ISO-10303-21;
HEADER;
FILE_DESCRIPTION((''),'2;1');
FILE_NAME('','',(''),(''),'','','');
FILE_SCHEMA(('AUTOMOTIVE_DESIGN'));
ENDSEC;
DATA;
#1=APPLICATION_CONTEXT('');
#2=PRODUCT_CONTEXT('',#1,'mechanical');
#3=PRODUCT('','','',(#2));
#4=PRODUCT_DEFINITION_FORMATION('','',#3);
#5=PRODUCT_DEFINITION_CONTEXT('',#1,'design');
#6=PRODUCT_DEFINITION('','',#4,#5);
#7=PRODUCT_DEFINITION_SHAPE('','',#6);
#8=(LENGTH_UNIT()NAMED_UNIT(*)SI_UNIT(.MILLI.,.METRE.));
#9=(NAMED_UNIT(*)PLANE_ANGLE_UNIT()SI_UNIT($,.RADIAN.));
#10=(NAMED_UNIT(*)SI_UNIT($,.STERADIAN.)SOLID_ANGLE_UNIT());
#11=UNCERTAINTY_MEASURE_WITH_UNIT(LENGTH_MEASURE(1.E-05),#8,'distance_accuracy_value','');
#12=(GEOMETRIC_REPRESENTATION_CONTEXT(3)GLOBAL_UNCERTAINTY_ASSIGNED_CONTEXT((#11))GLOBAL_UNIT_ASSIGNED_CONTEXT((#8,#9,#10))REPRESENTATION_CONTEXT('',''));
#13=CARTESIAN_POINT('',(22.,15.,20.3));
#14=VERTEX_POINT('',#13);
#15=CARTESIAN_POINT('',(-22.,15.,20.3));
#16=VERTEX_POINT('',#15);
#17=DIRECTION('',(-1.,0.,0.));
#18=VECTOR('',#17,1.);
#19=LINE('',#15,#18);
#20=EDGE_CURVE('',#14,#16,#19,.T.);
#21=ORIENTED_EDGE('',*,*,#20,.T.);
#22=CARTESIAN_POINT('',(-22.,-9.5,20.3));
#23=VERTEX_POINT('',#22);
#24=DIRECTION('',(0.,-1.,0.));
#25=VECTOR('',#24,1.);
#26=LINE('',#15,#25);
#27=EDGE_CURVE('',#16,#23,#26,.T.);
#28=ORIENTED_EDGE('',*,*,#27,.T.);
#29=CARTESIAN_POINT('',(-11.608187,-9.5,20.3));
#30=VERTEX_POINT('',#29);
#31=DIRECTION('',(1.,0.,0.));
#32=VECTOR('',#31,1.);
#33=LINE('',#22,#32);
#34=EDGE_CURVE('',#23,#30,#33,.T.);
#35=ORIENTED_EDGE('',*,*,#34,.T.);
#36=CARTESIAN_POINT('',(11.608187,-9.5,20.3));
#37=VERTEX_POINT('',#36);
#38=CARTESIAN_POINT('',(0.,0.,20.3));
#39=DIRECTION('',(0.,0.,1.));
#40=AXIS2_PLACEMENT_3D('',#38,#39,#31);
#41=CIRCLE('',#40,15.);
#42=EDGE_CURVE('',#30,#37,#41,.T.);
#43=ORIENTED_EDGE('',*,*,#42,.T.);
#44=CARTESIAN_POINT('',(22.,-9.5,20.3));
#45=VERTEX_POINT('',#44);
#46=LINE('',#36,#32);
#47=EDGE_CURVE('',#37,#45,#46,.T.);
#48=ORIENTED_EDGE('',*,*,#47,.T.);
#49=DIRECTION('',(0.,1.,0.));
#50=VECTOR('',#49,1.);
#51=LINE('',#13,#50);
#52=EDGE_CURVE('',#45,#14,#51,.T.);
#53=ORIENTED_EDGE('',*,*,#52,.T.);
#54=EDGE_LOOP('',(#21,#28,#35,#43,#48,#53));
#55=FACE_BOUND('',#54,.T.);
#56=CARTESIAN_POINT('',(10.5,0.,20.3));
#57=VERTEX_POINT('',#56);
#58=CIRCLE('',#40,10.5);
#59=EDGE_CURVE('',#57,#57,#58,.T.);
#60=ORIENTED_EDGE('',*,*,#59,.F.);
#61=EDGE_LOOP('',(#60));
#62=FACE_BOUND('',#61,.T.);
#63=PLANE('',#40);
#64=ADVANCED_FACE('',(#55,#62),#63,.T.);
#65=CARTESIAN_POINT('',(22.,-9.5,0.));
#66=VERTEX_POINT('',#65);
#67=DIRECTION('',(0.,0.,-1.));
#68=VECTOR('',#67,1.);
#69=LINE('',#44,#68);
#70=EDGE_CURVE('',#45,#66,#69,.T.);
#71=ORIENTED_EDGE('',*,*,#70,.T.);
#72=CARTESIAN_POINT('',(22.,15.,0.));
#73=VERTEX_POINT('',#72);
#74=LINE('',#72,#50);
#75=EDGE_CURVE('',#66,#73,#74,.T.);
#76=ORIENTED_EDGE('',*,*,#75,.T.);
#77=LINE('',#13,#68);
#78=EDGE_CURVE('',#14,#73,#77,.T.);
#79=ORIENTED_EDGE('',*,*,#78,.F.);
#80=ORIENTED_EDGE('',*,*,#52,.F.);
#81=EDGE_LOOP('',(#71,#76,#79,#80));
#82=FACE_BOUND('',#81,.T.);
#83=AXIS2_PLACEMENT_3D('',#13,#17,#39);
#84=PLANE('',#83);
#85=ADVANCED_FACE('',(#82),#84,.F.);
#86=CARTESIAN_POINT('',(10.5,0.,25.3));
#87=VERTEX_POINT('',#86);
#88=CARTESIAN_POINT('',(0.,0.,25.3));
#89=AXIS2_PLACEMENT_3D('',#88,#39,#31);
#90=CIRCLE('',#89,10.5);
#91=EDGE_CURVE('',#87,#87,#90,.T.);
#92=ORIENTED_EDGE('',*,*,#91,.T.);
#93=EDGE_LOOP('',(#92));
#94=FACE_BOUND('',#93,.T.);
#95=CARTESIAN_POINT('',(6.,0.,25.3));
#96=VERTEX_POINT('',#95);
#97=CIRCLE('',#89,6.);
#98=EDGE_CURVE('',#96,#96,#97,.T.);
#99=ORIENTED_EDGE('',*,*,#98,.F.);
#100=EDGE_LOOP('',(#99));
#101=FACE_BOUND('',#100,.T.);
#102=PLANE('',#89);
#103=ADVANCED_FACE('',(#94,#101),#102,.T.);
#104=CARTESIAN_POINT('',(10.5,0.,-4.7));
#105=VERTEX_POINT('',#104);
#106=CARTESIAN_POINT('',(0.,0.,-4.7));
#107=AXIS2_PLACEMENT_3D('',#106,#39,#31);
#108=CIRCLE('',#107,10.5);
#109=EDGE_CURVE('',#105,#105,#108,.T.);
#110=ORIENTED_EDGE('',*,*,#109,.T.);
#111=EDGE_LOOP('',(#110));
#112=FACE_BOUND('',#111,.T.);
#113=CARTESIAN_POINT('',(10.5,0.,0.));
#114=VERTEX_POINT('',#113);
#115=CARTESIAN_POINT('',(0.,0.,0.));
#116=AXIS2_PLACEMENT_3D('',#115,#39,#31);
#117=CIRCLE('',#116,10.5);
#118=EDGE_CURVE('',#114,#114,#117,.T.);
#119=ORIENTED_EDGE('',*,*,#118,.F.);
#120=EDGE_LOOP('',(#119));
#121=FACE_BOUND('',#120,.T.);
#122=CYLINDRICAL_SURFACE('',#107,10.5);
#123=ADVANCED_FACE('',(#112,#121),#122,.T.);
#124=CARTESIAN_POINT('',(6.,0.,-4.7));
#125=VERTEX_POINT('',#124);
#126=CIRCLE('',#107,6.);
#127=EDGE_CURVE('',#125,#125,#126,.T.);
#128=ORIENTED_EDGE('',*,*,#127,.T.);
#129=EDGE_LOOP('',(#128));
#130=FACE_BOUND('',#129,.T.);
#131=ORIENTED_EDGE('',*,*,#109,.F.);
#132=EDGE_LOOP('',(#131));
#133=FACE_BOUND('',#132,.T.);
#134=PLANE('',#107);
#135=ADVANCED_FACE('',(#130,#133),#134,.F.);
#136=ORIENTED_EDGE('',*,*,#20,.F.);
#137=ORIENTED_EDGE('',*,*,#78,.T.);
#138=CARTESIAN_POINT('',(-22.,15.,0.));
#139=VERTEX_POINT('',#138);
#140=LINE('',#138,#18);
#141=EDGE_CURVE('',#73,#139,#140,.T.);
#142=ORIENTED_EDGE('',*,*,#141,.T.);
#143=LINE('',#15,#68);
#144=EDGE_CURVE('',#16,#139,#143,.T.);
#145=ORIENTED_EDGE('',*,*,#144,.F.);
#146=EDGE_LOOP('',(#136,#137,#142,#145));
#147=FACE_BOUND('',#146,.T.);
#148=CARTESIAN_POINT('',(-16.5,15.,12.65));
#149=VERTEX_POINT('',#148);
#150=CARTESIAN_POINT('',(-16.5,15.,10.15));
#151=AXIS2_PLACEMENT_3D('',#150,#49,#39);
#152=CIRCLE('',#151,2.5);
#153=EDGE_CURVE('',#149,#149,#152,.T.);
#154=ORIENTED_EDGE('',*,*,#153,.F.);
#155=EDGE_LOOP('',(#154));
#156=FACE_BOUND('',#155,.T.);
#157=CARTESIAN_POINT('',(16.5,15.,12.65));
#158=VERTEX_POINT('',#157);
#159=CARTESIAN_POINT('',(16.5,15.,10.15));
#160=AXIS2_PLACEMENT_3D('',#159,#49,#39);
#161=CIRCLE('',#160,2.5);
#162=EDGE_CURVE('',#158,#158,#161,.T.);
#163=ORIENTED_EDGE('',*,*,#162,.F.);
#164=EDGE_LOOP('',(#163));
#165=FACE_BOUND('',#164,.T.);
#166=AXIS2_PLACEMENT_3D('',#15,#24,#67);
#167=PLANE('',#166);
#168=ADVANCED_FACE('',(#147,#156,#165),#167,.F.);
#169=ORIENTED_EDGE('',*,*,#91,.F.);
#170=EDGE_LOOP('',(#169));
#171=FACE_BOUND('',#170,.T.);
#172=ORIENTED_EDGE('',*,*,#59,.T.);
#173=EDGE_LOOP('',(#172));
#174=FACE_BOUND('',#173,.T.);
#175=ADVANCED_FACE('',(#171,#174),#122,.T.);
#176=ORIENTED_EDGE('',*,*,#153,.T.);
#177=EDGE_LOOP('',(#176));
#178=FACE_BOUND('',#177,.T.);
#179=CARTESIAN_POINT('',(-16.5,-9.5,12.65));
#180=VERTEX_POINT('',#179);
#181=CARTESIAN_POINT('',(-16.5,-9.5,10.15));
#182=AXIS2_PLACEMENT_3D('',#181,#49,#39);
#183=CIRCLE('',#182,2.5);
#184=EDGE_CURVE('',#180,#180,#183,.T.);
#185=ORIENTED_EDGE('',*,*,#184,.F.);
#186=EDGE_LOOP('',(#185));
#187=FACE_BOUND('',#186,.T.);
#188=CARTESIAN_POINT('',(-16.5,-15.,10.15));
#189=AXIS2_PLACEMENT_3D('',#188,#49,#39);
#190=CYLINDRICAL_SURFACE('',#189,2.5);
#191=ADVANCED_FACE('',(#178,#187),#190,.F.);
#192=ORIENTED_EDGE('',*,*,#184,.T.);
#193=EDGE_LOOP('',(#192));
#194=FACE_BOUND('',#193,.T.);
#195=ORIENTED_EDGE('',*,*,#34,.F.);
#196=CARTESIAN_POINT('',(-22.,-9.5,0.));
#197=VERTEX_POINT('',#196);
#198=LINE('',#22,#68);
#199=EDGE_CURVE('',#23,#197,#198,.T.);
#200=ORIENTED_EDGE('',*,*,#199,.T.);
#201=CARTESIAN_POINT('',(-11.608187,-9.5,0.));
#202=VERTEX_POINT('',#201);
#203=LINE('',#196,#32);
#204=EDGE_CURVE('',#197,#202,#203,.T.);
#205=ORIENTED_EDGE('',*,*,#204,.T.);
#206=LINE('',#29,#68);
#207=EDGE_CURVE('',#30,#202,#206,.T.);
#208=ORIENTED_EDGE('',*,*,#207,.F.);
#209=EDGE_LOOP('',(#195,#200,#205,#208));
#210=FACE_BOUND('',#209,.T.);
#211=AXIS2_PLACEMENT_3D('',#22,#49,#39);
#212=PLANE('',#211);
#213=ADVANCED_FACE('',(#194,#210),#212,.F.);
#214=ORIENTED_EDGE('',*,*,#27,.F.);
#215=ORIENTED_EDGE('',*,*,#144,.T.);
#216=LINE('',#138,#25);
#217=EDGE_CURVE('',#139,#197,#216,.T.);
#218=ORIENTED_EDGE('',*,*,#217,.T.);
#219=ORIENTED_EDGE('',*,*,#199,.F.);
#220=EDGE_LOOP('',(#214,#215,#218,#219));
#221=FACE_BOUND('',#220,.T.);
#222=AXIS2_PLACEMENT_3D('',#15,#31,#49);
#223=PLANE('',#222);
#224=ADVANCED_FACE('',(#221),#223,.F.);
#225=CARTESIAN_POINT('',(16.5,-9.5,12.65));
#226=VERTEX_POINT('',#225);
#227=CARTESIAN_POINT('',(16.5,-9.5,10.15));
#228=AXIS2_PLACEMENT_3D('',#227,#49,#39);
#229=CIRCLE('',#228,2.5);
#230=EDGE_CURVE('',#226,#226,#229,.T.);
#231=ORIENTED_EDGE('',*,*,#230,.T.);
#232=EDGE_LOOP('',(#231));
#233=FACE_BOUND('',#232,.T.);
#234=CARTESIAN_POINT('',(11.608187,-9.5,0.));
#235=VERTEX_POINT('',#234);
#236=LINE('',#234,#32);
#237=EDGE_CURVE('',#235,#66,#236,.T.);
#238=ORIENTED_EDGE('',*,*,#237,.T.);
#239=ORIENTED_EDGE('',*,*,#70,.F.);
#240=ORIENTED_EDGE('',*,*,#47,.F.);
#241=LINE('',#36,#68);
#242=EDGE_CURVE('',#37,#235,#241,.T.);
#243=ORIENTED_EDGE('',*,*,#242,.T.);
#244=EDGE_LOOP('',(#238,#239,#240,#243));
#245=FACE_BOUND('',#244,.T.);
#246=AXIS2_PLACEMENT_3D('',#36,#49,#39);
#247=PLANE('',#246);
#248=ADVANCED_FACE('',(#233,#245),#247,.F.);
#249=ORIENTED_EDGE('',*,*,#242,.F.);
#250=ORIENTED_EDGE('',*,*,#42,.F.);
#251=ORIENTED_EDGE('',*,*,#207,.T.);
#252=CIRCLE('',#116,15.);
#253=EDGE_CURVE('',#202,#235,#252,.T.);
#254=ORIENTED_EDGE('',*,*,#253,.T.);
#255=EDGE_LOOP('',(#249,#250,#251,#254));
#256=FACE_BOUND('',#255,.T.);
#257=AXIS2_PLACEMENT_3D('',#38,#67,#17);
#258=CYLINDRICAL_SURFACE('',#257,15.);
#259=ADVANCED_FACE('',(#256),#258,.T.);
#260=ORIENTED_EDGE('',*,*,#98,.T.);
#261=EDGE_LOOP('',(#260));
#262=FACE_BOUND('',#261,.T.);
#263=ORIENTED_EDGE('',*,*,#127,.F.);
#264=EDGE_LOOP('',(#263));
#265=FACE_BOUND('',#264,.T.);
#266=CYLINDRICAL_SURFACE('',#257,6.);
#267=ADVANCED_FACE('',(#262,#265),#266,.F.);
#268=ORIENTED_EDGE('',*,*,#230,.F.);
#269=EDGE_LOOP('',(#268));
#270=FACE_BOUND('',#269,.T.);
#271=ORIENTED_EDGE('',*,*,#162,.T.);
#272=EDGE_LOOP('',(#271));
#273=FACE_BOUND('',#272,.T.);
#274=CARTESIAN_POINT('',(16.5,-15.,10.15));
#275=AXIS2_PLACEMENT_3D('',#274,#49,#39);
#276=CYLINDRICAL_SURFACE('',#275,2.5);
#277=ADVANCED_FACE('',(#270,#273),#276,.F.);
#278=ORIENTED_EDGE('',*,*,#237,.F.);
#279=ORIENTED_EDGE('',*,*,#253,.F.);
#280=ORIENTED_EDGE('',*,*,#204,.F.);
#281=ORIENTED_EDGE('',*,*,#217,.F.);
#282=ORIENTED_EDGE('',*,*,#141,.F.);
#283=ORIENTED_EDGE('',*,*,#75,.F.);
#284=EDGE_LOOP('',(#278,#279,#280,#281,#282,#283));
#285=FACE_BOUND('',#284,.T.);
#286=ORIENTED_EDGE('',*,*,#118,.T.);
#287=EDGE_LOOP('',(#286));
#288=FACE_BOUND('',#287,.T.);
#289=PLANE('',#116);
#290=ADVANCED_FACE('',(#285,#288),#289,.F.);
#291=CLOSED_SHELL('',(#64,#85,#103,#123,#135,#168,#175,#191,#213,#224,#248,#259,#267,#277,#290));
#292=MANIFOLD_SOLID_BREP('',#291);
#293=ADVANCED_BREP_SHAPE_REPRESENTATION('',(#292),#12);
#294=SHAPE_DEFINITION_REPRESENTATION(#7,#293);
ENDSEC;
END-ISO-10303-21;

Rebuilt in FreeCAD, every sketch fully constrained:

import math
import FreeCAD as App
import Part
import Sketcher

V = App.Vector
Q = App.Units.Quantity

doc = App.newDocument("Part")
params = doc.addObject("Spreadsheet::Sheet", "Params")
for row, (alias, value) in enumerate([
    ("sketch1_diameter", "12 mm"),
    ("sketch1_radius", "15 mm"),
    ("sketch1_width", "44 mm"),
    ("sketch1_height", "24.5 mm"),
    ("pad1_length", "20.3 mm"),
    ("sketch2_diameter", "21 mm"),
    ("sketch2_diameter2", "12 mm"),
    ("pad2_length", "5 mm"),
    ("pad2_length2", "25 mm"),
    ("sketch3_diameter", "5 mm"),
], start=1):
    params.set(f"A{row}", alias)
    params.set(f"B{row}", "=" + value)
    params.setAlias(f"B{row}", alias)

body = doc.addObject("PartDesign::Body", "Body")

sketch1 = doc.addObject("Sketcher::SketchObject", "Sketch")
body.addObject(sketch1)
sketch1.AttachmentSupport = (doc.XY_Plane, [""])
sketch1.MapMode = "FlatFace"
sketch1.addGeometry(Part.LineSegment(V(-22, -10, 0), V(-12, -10, 0)), False)
sketch1.addGeometry(Part.ArcOfCircle(Part.Circle(V(0, 0, 0), V(0, 0, 1), 15), math.radians(-141), math.radians(-39)), False)
sketch1.addGeometry(Part.LineSegment(V(12, -10, 0), V(22, -10, 0)), False)
sketch1.addGeometry(Part.LineSegment(V(22, -10, 0), V(22, 15, 0)), False)
sketch1.addGeometry(Part.LineSegment(V(22, 15, 0), V(-22, 15, 0)), False)
sketch1.addGeometry(Part.LineSegment(V(-22, 15, 0), V(-22, -10, 0)), False)
sketch1.addGeometry(Part.Circle(V(0, 0, 0), V(0, 0, 1), 6), False)
sketch1.addConstraint(Sketcher.Constraint("Coincident", 0, 2, 1, 1))
sketch1.addConstraint(Sketcher.Constraint("Coincident", 1, 2, 2, 1))
sketch1.addConstraint(Sketcher.Constraint("Coincident", 2, 2, 3, 1))
sketch1.addConstraint(Sketcher.Constraint("Coincident", 3, 2, 4, 1))
sketch1.addConstraint(Sketcher.Constraint("Coincident", 4, 2, 5, 1))
sketch1.addConstraint(Sketcher.Constraint("Coincident", 5, 2, 0, 1))
sketch1.addConstraint(Sketcher.Constraint("Horizontal", 0))
sketch1.addConstraint(Sketcher.Constraint("Horizontal", 2))
sketch1.addConstraint(Sketcher.Constraint("Vertical", 3))
sketch1.addConstraint(Sketcher.Constraint("Horizontal", 4))
sketch1.addConstraint(Sketcher.Constraint("Vertical", 5))
sketch1.addConstraint(Sketcher.Constraint("Coincident", 1, 3, -1, 1))
sketch1.addConstraint(Sketcher.Constraint("Coincident", 6, 3, -1, 1))
sketch1.addConstraint(Sketcher.Constraint("Symmetric", 2, 2, 5, 2, -2))
sketch1.addConstraint(Sketcher.Constraint("Diameter", 6, Q("12 mm")))
sketch1.addConstraint(Sketcher.Constraint("Radius", 1, Q("15 mm")))
sketch1.addConstraint(Sketcher.Constraint("DistanceX", 4, 2, 4, 1, Q("44 mm")))
sketch1.addConstraint(Sketcher.Constraint("DistanceY", 3, 1, 3, 2, Q("24.5 mm")))
sketch1.addConstraint(Sketcher.Constraint("DistanceY", -1, 1, 3, 2, Q("15 mm")))
sketch1.setExpression("Constraints[14]", "Params.sketch1_diameter")
sketch1.setExpression("Constraints[15]", "Params.sketch1_radius")
sketch1.setExpression("Constraints[16]", "Params.sketch1_width")
sketch1.setExpression("Constraints[17]", "Params.sketch1_height")
pad1 = doc.addObject("PartDesign::Pad", "Pad")
body.addObject(pad1)
pad1.Profile = sketch1
pad1.setExpression("Length", "Params.pad1_length")

sketch2 = doc.addObject("Sketcher::SketchObject", "Sketch001")
body.addObject(sketch2)
sketch2.AttachmentSupport = (doc.XY_Plane, [""])
sketch2.MapMode = "FlatFace"
sketch2.AttachmentOffset = App.Placement(V(0, 0, 20.3), App.Rotation())
sketch2.addGeometry(Part.Circle(V(0, 0, 0), V(0, 0, 1), 10), False)
sketch2.addGeometry(Part.Circle(V(0, 0, 0), V(0, 0, 1), 6), False)
sketch2.addConstraint(Sketcher.Constraint("Coincident", 0, 3, -1, 1))
sketch2.addConstraint(Sketcher.Constraint("Coincident", 1, 3, -1, 1))
sketch2.addConstraint(Sketcher.Constraint("Diameter", 0, Q("21 mm")))
sketch2.addConstraint(Sketcher.Constraint("Diameter", 1, Q("12 mm")))
sketch2.setExpression("Constraints[2]", "Params.sketch2_diameter")
sketch2.setExpression("Constraints[3]", "Params.sketch2_diameter2")
pad2 = doc.addObject("PartDesign::Pad", "Pad001")
body.addObject(pad2)
pad2.Profile = sketch2
pad2.Type = "TwoLengths"
pad2.setExpression("Length", "Params.pad2_length")
pad2.setExpression("Length2", "Params.pad2_length2")

sketch3 = doc.addObject("Sketcher::SketchObject", "Sketch002")
body.addObject(sketch3)
sketch3.AttachmentSupport = (doc.XZ_Plane, [""])
sketch3.MapMode = "FlatFace"
sketch3.AttachmentOffset = App.Placement(V(0, 0, -15), App.Rotation())
sketch3.addGeometry(Part.Circle(V(-16.5, 10.2, 0), V(0, 0, 1), 2.5), False)
sketch3.addGeometry(Part.Circle(V(16.5, 10.2, 0), V(0, 0, 1), 2.5), False)
sketch3.addConstraint(Sketcher.Constraint("Equal", 0, 1))
sketch3.addConstraint(Sketcher.Constraint("Symmetric", 0, 3, 1, 3, -2))
sketch3.addConstraint(Sketcher.Constraint("Diameter", 0, Q("5 mm")))
sketch3.addConstraint(Sketcher.Constraint("DistanceX", 0, 3, 1, 3, Q("33 mm")))
sketch3.addConstraint(Sketcher.Constraint("DistanceY", -1, 1, 0, 3, Q("10.15 mm")))
sketch3.setExpression("Constraints[2]", "Params.sketch3_diameter")
pocket1 = doc.addObject("PartDesign::Pocket", "Pocket")
body.addObject(pocket1)
pocket1.Profile = sketch3
pocket1.Type = "ThroughAll"
pocket1.Reversed = True

doc.recompute()
